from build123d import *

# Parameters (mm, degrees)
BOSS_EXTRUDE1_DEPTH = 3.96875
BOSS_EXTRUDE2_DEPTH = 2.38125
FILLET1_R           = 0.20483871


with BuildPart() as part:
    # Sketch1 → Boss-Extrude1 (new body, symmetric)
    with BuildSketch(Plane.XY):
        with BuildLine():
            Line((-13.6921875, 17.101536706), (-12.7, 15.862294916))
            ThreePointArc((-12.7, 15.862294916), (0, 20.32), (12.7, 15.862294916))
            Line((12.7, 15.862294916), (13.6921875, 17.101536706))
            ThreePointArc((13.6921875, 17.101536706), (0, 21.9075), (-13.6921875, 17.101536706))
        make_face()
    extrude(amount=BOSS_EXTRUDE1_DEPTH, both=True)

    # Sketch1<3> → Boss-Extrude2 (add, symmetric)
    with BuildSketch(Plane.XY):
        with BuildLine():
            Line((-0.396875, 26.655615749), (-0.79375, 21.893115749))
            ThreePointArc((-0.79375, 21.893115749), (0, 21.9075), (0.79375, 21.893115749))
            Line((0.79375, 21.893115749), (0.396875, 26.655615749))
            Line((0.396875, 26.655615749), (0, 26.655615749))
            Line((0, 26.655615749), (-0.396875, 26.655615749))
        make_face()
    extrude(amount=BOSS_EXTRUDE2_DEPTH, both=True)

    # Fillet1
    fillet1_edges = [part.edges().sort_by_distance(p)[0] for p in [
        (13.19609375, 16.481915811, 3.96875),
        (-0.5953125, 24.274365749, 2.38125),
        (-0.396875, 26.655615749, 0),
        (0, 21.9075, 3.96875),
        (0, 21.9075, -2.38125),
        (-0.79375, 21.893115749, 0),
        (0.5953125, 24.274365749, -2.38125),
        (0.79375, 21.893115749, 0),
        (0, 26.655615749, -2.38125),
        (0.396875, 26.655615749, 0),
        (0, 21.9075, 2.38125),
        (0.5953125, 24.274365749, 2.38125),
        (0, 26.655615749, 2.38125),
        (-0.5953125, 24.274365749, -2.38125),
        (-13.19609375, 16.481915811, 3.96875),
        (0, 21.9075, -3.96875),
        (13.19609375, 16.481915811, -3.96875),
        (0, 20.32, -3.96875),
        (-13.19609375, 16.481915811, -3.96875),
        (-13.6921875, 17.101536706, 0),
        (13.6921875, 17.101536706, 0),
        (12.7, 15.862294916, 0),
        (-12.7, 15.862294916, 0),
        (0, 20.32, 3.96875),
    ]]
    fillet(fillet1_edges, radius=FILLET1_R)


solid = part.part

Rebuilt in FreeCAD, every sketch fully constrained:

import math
import FreeCAD as App
import Part
import Sketcher

V = App.Vector
Q = App.Units.Quantity

doc = App.newDocument("Part")
params = doc.addObject("Spreadsheet::Sheet", "Params")
for row, (alias, value) in enumerate([
    ("sketch1_radius", "0.8 in"),
    ("pad1_length", "0.3125 in"),
    ("sketch2_width", "0.03125 in"),
    ("pad2_length", "0.1875 in"),
    ("fillet_radius", "0.204839 mm"),
], start=1):
    params.set(f"A{row}", alias)
    params.set(f"B{row}", "=" + value)
    params.setAlias(f"B{row}", alias)

body = doc.addObject("PartDesign::Body", "Body")

# Sketch on XY plane
sketch1 = body.newObject("Sketcher::SketchObject", "Sketch")
sketch1.AttachmentSupport = (doc.getObject("XY_Plane"), [""])
sketch1.MapMode = "FlatFace"
sketch1.addGeometry(Part.LineSegment(V(-13.692187, 17.101537, 0), V(-12.7, 15.862295, 0)), False)
sketch1.addGeometry(Part.ArcOfCircle(Part.Circle(V(0, 0, 0), V(0, 0, 1), 20.32), math.radians(51.317813), math.radians(128.682187)), False)
sketch1.addGeometry(Part.LineSegment(V(12.7, 15.862295, 0), V(13.692187, 17.101537, 0)), False)
sketch1.addGeometry(Part.ArcOfCircle(Part.Circle(V(0, 0, 0), V(0, 0, 1), 21.9075), math.radians(51.317813), math.radians(128.682187)), False)
sketch1.addConstraint(Sketcher.Constraint("Coincident", 0, 2, 1, 2))
sketch1.addConstraint(Sketcher.Constraint("Coincident", 1, 1, 2, 1))
sketch1.addConstraint(Sketcher.Constraint("Coincident", 2, 2, 3, 1))
sketch1.addConstraint(Sketcher.Constraint("Coincident", 3, 2, 0, 1))
sketch1.addConstraint(Sketcher.Constraint("Coincident", 1, 3, -1, 1))
sketch1.addConstraint(Sketcher.Constraint("Coincident", 3, 3, -1, 1))
sketch1.addConstraint(Sketcher.Constraint("Horizontal", 0, 2, 1, 1))
sketch1.addConstraint(Sketcher.Constraint("Horizontal", 2, 2, 3, 2))
sketch1.addConstraint(Sketcher.Constraint("Radius", 1, Q("0.8 in")))
sketch1.addConstraint(Sketcher.Constraint("DistanceX", 0, 2, 1, 1, Q("1 in")))
sketch1.addConstraint(Sketcher.Constraint("Radius", 3, Q("0.8625 in")))
sketch1.addConstraint(Sketcher.Constraint("DistanceX", 3, 2, 2, 2, Q("1.078125 in")))
sketch1.setExpression("Constraints[8]", "Params.sketch1_radius")
pad1 = body.newObject("PartDesign::Pad", "Pad")
pad1.Profile = sketch1
pad1.setExpression("Length", "Params.pad1_length")
pad1.Midplane = True

# Sketch on XY plane
sketch2 = body.newObject("Sketcher::SketchObject", "Sketch001")
sketch2.AttachmentSupport = (doc.getObject("XY_Plane"), [""])
sketch2.MapMode = "FlatFace"
sketch2.addGeometry(Part.LineSegment(V(-0.396875, 26.655616, 0), V(-0.79375, 21.893116, 0)), False)
sketch2.addGeometry(Part.ArcOfCircle(Part.Circle(V(0, 0, 0), V(0, 0, 1), 21.9075), math.radians(87.923612), math.radians(92.076388)), False)
sketch2.addGeometry(Part.LineSegment(V(0.79375, 21.893116, 0), V(0.396875, 26.655616, 0)), False)
sketch2.addGeometry(Part.LineSegment(V(0.396875, 26.655616, 0), V(-0.396875, 26.655616, 0)), False)
sketch2.addConstraint(Sketcher.Constraint("Coincident", 0, 2, 1, 2))
sketch2.addConstraint(Sketcher.Constraint("Coincident", 1, 1, 2, 1))
sketch2.addConstraint(Sketcher.Constraint("Coincident", 2, 2, 3, 1))
sketch2.addConstraint(Sketcher.Constraint("Coincident", 3, 2, 0, 1))
sketch2.addConstraint(Sketcher.Constraint("Horizontal", 3))
sketch2.addConstraint(Sketcher.Constraint("Coincident", 1, 3, -1, 1))
sketch2.addConstraint(Sketcher.Constraint("Horizontal", 0, 2, 1, 1))
sketch2.addConstraint(Sketcher.Constraint("Equal", 0, 2))
sketch2.addConstraint(Sketcher.Constraint("Radius", 1, Q("0.8625 in")))
sketch2.addConstraint(Sketcher.Constraint("DistanceX", 3, 2, 3, 1, Q("0.03125 in")))
sketch2.addConstraint(Sketcher.Constraint("DistanceX", 0, 2, -1, 1, Q("0.03125 in")))
sketch2.addConstraint(Sketcher.Constraint("DistanceY", 1, 1, 2, 2, Q("0.1875 in")))
sketch2.setExpression("Constraints[9]", "Params.sketch2_width")
pad2 = body.newObject("PartDesign::Pad", "Pad001")
pad2.Profile = sketch2
pad2.setExpression("Length", "Params.pad2_length")
pad2.Midplane = True
doc.recompute()

fillet = body.newObject("PartDesign::Fillet", "Fillet")
fillet.Base = (pad2, ["Edge1"])
fillet.UseAllEdges = True
fillet.setExpression("Radius", "Params.fillet_radius")

doc.recompute()
